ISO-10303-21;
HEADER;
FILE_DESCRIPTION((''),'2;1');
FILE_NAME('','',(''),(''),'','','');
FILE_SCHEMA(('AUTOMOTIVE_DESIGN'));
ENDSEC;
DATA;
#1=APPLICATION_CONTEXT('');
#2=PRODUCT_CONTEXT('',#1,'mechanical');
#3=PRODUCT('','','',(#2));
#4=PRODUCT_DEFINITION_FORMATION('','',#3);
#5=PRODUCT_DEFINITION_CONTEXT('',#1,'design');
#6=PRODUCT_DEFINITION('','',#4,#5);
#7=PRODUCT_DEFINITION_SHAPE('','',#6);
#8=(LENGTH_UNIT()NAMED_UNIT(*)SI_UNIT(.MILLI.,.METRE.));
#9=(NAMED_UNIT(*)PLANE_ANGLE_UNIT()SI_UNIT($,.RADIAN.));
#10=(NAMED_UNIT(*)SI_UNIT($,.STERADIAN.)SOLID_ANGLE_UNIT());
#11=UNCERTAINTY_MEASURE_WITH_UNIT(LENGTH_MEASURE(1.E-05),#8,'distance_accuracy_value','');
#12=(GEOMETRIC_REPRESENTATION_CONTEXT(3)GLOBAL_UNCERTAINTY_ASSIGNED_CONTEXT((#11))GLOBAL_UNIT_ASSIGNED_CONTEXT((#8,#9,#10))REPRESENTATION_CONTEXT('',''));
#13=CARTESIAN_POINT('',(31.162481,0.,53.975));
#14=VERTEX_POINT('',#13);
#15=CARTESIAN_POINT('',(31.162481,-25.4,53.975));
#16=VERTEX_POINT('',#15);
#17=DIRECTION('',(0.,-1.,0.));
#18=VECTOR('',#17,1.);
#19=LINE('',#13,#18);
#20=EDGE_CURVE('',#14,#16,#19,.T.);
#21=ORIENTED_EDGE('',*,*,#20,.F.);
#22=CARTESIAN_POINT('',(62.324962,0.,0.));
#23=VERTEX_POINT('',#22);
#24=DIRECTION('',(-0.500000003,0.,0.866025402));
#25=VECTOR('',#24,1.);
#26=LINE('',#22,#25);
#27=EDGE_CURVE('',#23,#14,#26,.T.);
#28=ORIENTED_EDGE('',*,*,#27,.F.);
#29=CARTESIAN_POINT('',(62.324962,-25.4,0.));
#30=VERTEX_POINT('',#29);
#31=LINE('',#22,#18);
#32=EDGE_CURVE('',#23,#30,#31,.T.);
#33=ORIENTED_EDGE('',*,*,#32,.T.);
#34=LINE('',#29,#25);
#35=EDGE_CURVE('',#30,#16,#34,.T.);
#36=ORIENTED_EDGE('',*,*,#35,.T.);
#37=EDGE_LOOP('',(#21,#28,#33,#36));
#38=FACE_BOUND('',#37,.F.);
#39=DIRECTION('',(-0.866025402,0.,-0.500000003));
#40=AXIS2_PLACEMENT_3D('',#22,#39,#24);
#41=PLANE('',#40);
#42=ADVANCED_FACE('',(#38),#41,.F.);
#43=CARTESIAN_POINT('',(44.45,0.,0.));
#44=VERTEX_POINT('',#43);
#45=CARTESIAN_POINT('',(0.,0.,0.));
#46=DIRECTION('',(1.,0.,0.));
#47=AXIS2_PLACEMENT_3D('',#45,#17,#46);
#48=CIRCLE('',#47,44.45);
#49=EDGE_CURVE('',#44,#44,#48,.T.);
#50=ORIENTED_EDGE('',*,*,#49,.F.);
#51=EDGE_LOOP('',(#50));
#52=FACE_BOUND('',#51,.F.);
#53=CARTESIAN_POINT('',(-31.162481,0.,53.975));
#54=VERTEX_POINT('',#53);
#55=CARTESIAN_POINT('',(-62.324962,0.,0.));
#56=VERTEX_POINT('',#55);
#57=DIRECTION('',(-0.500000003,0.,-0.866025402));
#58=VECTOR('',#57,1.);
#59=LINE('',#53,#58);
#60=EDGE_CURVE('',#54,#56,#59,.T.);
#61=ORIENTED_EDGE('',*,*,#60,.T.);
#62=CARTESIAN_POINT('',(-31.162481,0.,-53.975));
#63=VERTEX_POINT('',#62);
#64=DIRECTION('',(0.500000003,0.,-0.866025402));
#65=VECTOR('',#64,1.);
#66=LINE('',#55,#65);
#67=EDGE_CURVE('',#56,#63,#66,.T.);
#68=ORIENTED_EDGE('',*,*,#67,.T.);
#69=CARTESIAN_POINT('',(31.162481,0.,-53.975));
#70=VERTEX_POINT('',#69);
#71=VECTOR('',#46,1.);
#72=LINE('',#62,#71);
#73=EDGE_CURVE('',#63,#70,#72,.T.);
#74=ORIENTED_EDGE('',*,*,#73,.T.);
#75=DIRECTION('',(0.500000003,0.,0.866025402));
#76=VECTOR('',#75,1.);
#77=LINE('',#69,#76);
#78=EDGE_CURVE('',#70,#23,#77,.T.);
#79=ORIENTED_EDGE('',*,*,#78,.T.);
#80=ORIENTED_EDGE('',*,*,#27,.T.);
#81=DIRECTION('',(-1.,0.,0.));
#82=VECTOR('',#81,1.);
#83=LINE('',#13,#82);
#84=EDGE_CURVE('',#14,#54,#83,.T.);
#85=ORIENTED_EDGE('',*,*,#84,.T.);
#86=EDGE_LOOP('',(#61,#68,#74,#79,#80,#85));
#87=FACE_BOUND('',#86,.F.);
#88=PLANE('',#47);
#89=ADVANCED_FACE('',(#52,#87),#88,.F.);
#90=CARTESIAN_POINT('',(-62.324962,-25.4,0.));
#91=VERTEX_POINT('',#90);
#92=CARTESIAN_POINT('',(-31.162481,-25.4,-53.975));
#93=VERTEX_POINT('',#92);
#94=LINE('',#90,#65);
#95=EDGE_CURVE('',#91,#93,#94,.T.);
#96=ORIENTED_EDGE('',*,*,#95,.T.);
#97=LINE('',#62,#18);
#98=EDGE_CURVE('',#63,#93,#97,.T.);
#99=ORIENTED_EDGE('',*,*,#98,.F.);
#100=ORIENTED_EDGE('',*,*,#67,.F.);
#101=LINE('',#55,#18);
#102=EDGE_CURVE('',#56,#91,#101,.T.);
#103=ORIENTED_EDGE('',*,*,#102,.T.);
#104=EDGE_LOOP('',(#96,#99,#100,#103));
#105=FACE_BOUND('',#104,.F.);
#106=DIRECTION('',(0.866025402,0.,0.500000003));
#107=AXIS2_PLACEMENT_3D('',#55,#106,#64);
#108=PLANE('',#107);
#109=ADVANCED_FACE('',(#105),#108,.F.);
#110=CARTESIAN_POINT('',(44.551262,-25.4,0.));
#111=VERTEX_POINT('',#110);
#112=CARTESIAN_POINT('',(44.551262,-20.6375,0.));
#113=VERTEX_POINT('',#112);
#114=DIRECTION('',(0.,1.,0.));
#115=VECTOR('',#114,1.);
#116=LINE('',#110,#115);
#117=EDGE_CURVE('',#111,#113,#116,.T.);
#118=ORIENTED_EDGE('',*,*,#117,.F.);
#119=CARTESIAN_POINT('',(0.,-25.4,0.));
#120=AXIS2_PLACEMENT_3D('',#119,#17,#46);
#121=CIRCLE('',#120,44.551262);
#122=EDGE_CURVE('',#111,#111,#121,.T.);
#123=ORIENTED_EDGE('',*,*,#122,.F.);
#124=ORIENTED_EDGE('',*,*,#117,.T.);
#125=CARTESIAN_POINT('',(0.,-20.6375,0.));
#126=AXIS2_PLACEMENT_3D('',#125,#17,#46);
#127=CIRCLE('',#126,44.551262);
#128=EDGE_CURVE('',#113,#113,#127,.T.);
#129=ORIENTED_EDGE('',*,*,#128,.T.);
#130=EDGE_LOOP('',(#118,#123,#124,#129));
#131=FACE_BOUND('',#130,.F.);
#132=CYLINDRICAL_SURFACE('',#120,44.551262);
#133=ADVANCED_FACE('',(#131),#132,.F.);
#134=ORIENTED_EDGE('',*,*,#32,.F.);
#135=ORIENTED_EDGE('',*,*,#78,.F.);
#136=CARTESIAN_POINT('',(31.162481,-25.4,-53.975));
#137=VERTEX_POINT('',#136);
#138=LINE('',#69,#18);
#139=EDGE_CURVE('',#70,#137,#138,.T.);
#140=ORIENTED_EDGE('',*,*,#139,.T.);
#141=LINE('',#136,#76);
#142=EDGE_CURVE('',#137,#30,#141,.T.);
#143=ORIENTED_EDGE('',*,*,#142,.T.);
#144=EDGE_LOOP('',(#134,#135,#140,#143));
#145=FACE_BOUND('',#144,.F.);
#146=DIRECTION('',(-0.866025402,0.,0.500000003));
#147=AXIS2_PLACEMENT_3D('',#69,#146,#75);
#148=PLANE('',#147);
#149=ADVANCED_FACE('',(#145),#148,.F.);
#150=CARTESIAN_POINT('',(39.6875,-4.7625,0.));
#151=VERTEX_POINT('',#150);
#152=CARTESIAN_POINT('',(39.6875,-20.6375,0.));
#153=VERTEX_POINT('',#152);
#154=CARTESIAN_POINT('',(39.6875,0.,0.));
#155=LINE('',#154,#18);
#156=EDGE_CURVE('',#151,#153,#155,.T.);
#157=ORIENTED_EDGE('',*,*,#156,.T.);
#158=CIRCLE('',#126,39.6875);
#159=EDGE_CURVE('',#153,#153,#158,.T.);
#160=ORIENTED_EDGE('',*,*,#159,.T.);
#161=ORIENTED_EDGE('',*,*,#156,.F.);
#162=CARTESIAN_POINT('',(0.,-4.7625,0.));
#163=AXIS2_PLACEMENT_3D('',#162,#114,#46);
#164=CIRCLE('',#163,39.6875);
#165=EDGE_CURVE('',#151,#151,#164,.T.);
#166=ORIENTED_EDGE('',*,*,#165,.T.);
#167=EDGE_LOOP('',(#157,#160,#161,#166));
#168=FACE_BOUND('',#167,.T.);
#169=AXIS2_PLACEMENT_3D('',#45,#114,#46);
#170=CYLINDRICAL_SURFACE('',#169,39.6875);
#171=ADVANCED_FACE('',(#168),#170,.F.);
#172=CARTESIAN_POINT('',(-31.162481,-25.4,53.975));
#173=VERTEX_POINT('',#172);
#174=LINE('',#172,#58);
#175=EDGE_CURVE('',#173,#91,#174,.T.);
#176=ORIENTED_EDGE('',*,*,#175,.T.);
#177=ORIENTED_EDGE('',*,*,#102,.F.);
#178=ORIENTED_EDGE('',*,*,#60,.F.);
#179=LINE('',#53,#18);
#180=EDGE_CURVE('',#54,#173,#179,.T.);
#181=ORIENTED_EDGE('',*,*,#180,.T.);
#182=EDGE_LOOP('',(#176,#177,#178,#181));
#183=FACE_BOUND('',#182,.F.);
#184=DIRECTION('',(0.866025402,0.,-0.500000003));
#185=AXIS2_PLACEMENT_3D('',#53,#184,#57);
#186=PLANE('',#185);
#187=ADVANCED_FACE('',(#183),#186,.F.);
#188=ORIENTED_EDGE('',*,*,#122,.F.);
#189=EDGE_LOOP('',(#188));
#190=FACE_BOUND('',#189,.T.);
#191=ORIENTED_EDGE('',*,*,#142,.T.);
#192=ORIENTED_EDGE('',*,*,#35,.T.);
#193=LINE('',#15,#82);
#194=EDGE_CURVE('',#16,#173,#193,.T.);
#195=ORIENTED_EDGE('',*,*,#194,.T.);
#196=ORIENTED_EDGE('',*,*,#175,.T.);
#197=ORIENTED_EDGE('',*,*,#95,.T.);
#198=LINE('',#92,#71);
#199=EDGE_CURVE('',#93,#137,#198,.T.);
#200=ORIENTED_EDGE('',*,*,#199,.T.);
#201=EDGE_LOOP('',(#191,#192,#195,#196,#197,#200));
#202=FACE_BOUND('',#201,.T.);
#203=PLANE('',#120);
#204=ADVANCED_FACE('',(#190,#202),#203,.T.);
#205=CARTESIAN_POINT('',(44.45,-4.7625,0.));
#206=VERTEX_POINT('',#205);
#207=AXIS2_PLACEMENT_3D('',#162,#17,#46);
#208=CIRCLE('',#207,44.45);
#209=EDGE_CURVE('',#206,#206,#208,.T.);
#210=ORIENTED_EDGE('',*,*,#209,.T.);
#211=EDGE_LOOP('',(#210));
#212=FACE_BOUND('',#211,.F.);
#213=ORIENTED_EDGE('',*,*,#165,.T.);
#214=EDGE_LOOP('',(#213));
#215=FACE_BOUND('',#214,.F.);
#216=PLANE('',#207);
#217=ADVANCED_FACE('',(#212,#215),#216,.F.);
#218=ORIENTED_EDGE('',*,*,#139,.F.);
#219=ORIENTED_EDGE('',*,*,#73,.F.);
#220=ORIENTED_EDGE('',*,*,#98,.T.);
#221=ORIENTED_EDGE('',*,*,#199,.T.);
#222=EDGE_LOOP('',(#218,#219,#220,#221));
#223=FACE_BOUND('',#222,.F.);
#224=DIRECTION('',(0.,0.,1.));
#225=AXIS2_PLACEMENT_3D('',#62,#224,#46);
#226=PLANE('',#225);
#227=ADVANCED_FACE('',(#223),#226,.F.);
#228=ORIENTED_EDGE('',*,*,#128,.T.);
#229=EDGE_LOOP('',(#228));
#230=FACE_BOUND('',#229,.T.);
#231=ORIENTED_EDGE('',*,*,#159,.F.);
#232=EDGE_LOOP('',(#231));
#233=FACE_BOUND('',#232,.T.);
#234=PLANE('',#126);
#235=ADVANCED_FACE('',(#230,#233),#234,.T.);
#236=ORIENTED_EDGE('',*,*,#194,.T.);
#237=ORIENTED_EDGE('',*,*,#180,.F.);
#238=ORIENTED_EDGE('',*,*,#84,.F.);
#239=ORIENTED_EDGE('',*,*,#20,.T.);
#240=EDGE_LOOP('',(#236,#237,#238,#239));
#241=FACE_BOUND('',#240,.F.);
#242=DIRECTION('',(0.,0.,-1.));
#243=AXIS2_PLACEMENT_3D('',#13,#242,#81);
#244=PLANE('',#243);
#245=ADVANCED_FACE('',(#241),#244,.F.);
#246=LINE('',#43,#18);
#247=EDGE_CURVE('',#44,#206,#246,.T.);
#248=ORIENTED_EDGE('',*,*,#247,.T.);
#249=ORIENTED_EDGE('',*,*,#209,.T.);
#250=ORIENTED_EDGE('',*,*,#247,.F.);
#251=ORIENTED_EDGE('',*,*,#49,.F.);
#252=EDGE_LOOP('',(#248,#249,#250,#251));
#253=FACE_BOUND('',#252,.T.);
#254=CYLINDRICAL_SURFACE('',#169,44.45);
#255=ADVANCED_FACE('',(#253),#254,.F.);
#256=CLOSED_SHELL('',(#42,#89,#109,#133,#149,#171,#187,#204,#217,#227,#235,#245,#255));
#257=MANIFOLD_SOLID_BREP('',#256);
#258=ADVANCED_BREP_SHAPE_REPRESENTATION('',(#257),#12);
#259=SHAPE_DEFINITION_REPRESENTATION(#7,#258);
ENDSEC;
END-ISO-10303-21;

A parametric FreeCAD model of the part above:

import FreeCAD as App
import Part
import Sketcher
from FreeCAD import Vector
Q = App.Units.Quantity

doc = App.newDocument("Part")
params = doc.addObject("Spreadsheet::Sheet", "Params")
for row, (alias, value) in enumerate([
    ("sketch1_diameter", "3.125 in"),
    ("pad1_length", "1 in"),
    ("sketch2_diameter", "3.5 in"),
    ("pocket1_length", "0.1875 in"),
    ("sketch3_diameter", "3.125 in"),
    ("pocket2_length", "0.1875 in"),
], start=1):
    params.set(f"A{row}", alias)
    params.set(f"B{row}", "=" + value)
    params.setAlias(f"B{row}", alias)

body = doc.addObject("PartDesign::Body", "Body")

# Sketch on XZ plane
sketch1 = body.newObject("Sketcher::SketchObject", "Sketch")
sketch1.AttachmentSupport = (doc.getObject("XZ_Plane"), [""])
sketch1.MapMode = "FlatFace"
sketch1.addGeometry(Part.LineSegment(Vector(31, 54, 0), Vector(-31, 54, 0)), False)
sketch1.addGeometry(Part.LineSegment(Vector(-31, 54, 0), Vector(-62, 0, 0)), False)
sketch1.addGeometry(Part.LineSegment(Vector(-62, 0, 0), Vector(-31, -54, 0)), False)
sketch1.addGeometry(Part.LineSegment(Vector(-31, -54, 0), Vector(31, -54, 0)), False)
sketch1.addGeometry(Part.LineSegment(Vector(31, -54, 0), Vector(62, 0, 0)), False)
sketch1.addGeometry(Part.LineSegment(Vector(62, 0, 0), Vector(31, 54, 0)), False)
sketch1.addGeometry(Part.Circle(Vector(0, 0, 0), Vector(0, 0, 1), 40), False)
sketch1.addConstraint(Sketcher.Constraint("Coincident", 0, 2, 1, 1))
sketch1.addConstraint(Sketcher.Constraint("Coincident", 1, 2, 2, 1))
sketch1.addConstraint(Sketcher.Constraint("Coincident", 2, 2, 3, 1))
sketch1.addConstraint(Sketcher.Constraint("Coincident", 3, 2, 4, 1))
sketch1.addConstraint(Sketcher.Constraint("Coincident", 4, 2, 5, 1))
sketch1.addConstraint(Sketcher.Constraint("Coincident", 5, 2, 0, 1))
sketch1.addConstraint(Sketcher.Constraint("Horizontal", 0))
sketch1.addConstraint(Sketcher.Constraint("Horizontal", 3))
sketch1.addConstraint(Sketcher.Constraint("Coincident", 6, 3, -1, 1))
sketch1.addConstraint(Sketcher.Constraint("Symmetric", 0, 2, 3, 2, -1, 1))
sketch1.addConstraint(Sketcher.Constraint("Symmetric", 1, 2, 4, 2, -1, 1))
sketch1.addConstraint(Sketcher.Constraint("PointOnObject", 1, 2, -1))
sketch1.addConstraint(Sketcher.Constraint("Parallel", 2, 5))
sketch1.addConstraint(Sketcher.Constraint("Vertical", 0, 2, 2, 2))
sketch1.addConstraint(Sketcher.Constraint("Diameter", 6, Q("3.125 in")))
sketch1.addConstraint(Sketcher.Constraint("Angle", 1, Q("-120 deg")))
sketch1.addConstraint(Sketcher.Constraint("DistanceY", 2, 2, 0, 2, Q("4.25 in")))
sketch1.addConstraint(Sketcher.Constraint("DistanceX", 0, 2, 0, 1, Q("62.324962 mm")))
sketch1.setExpression("Constraints[14]", "Params.sketch1_diameter")
pad1 = body.newObject("PartDesign::Pad", "Pad")
pad1.Profile = sketch1
pad1.setExpression("Length", "Params.pad1_length")

# Sketch on XZ plane
sketch2 = body.newObject("Sketcher::SketchObject", "Sketch001")
sketch2.AttachmentSupport = (doc.getObject("XZ_Plane"), [""])
sketch2.MapMode = "FlatFace"
sketch2.addGeometry(Part.Circle(Vector(0, 0, 0), Vector(0, 0, 1), 44), False)
sketch2.addConstraint(Sketcher.Constraint("Coincident", 0, 3, -1, 1))
sketch2.addConstraint(Sketcher.Constraint("Diameter", 0, Q("3.5 in")))
sketch2.setExpression("Constraints[1]", "Params.sketch2_diameter")
pocket1 = body.newObject("PartDesign::Pocket", "Pocket")
pocket1.Profile = sketch2
pocket1.setExpression("Length", "Params.pocket1_length")
pocket1.Reversed = True

# Sketch on XZ plane
sketch3 = body.newObject("Sketcher::SketchObject", "Sketch002")
sketch3.AttachmentSupport = (doc.getObject("XZ_Plane"), [""])
sketch3.MapMode = "FlatFace"
sketch3.AttachmentOffset = App.Placement(Vector(0, 0, 1 * 25.4), App.Rotation())
sketch3.addGeometry(Part.Circle(Vector(0, 0, 0), Vector(0, 0, 1), 45), False)
sketch3.addGeometry(Part.Circle(Vector(0, 0, 0), Vector(0, 0, 1), 40), False)
sketch3.addConstraint(Sketcher.Constraint("Coincident", 0, 3, -1, 1))
sketch3.addConstraint(Sketcher.Constraint("Coincident", 1, 3, -1, 1))
sketch3.addConstraint(Sketcher.Constraint("Diameter", 1, Q("3.125 in")))
sketch3.addConstraint(Sketcher.Constraint("Diameter", 0, Q("89.102524 mm")))
sketch3.setExpression("Constraints[2]", "Params.sketch3_diameter")
pocket2 = body.newObject("PartDesign::Pocket", "Pocket001")
pocket2.Profile = sketch3
pocket2.setExpression("Length", "Params.pocket2_length")

doc.recompute()
